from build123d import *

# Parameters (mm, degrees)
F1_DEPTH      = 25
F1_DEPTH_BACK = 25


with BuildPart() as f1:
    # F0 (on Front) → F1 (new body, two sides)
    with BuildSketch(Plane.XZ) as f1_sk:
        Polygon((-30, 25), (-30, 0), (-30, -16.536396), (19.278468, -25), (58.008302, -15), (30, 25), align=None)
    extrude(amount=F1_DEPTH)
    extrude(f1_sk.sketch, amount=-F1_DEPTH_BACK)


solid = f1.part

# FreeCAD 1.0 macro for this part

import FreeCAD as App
import Part
import Sketcher
from FreeCAD import Vector
Q = App.Units.Quantity

doc = App.newDocument("Part")
body = doc.addObject("PartDesign::Body", "Body")

# Sketch on XZ plane
sketch1 = body.newObject("Sketcher::SketchObject", "Sketch")
sketch1.AttachmentSupport = (doc.getObject("XZ_Plane"), [""])
sketch1.MapMode = "FlatFace"
sketch1.addGeometry([
    Part.LineSegment(Vector(-30, 25, 0), Vector(-30, -17, 0)),  # 0
    Part.LineSegment(Vector(-30, -17, 0), Vector(19, -25, 0)),  # 1
    Part.LineSegment(Vector(19, -25, 0), Vector(58, -15, 0)),  # 2
    Part.LineSegment(Vector(58, -15, 0), Vector(30, 25, 0)),  # 3
    Part.LineSegment(Vector(30, 25, 0), Vector(-30, 25, 0)),  # 4
], False)
sketch1.addConstraint([
    Sketcher.Constraint("Coincident", 0, 2, 1, 1),
    Sketcher.Constraint("Coincident", 1, 2, 2, 1),
    Sketcher.Constraint("Coincident", 2, 2, 3, 1),
    Sketcher.Constraint("Coincident", 3, 2, 4, 1),
    Sketcher.Constraint("Coincident", 4, 2, 0, 1),
    Sketcher.Constraint("Vertical", 0),
    Sketcher.Constraint("Horizontal", 4),
    Sketcher.Constraint("DistanceX", 4, 2, 4, 1, Q("60 mm")),
    Sketcher.Constraint("Angle", 3, Q("125 deg")),
    Sketcher.Constraint("Distance", 1, Q("50 mm")),
    Sketcher.Constraint("Distance", 2, Q("40.000001 mm")),
    Sketcher.Constraint("DistanceX", 0, 2, -1, 1, Q("30 mm")),
    Sketcher.Constraint("DistanceY", 1, 2, -1, 1, Q("25 mm")),
    Sketcher.Constraint("DistanceY", 2, 2, -1, 1, Q("15 mm")),
    Sketcher.Constraint("DistanceY", -1, 1, 3, 2, Q("25 mm")),
])
pad1 = body.newObject("PartDesign::Pad", "Pad")
pad1.Profile = sketch1
pad1.Type = "TwoLengths"
pad1.Length = 25
pad1.Length2 = 25

doc.recompute()
